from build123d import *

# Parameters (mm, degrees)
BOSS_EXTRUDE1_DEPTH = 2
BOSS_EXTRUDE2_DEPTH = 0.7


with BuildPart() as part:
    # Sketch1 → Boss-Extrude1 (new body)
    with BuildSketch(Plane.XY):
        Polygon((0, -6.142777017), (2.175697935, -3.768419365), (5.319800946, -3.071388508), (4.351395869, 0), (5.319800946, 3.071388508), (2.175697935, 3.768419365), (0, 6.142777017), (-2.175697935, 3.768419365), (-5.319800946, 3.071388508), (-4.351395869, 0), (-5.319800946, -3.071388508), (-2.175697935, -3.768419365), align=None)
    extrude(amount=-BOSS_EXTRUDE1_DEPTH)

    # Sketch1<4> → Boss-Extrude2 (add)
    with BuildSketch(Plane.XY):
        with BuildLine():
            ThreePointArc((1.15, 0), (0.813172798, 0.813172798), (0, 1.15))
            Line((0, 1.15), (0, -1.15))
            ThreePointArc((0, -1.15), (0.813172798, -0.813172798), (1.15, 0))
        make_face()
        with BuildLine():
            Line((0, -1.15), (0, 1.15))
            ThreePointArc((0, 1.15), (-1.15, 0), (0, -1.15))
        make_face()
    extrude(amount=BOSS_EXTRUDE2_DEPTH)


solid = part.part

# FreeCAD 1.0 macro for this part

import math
import FreeCAD as App
import Part
import Sketcher
from FreeCAD import Vector
Q = App.Units.Quantity

doc = App.newDocument("Part")
body = doc.addObject("PartDesign::Body", "Body")

sketch1 = body.newObject("Sketcher::SketchObject", "Sketch")
sketch1.AttachmentSupport = (doc.getObject("XY_Plane"), [""])
sketch1.MapMode = "FlatFace"
sketch1.addGeometry(Part.LineSegment(Vector(0, -6.1, 0), Vector(2.2, -3.8, 0)), False)
sketch1.addGeometry(Part.LineSegment(Vector(2.2, -3.8, 0), Vector(5.3, -3.1, 0)), False)
sketch1.addGeometry(Part.LineSegment(Vector(5.3, -3.1, 0), Vector(4.4, 0, 0)), False)
sketch1.addGeometry(Part.LineSegment(Vector(4.4, 0, 0), Vector(5.3, 3.1, 0)), False)
sketch1.addGeometry(Part.LineSegment(Vector(5.3, 3.1, 0), Vector(2.2, 3.8, 0)), False)
sketch1.addGeometry(Part.LineSegment(Vector(2.2, 3.8, 0), Vector(0, 6.1, 0)), False)
sketch1.addGeometry(Part.LineSegment(Vector(0, 6.1, 0), Vector(-2.2, 3.8, 0)), False)
sketch1.addGeometry(Part.LineSegment(Vector(-2.2, 3.8, 0), Vector(-5.3, 3.1, 0)), False)
sketch1.addGeometry(Part.LineSegment(Vector(-5.3, 3.1, 0), Vector(-4.4, 0, 0)), False)
sketch1.addGeometry(Part.LineSegment(Vector(-4.4, 0, 0), Vector(-5.3, -3.1, 0)), False)
sketch1.addGeometry(Part.LineSegment(Vector(-5.3, -3.1, 0), Vector(-2.2, -3.8, 0)), False)
sketch1.addGeometry(Part.LineSegment(Vector(-2.2, -3.8, 0), Vector(0, -6.1, 0)), False)
sketch1.addConstraint(Sketcher.Constraint("Coincident", 0, 2, 1, 1))
sketch1.addConstraint(Sketcher.Constraint("Coincident", 1, 2, 2, 1))
sketch1.addConstraint(Sketcher.Constraint("Coincident", 2, 2, 3, 1))
sketch1.addConstraint(Sketcher.Constraint("Coincident", 3, 2, 4, 1))
sketch1.addConstraint(Sketcher.Constraint("Coincident", 4, 2, 5, 1))
sketch1.addConstraint(Sketcher.Constraint("Coincident", 5, 2, 6, 1))
sketch1.addConstraint(Sketcher.Constraint("Coincident", 6, 2, 7, 1))
sketch1.addConstraint(Sketcher.Constraint("Coincident", 7, 2, 8, 1))
sketch1.addConstraint(Sketcher.Constraint("Coincident", 8, 2, 9, 1))
sketch1.addConstraint(Sketcher.Constraint("Coincident", 9, 2, 10, 1))
sketch1.addConstraint(Sketcher.Constraint("Coincident", 10, 2, 11, 1))
sketch1.addConstraint(Sketcher.Constraint("Coincident", 11, 2, 0, 1))
sketch1.addConstraint(Sketcher.Constraint("Symmetric", 0, 2, 6, 2, -1, 1))
sketch1.addConstraint(Sketcher.Constraint("Symmetric", 1, 2, 7, 2, -1, 1))
sketch1.addConstraint(Sketcher.Constraint("Symmetric", 2, 2, 8, 2, -1, 1))
sketch1.addConstraint(Sketcher.Constraint("Symmetric", 3, 2, 9, 2, -1, 1))
sketch1.addConstraint(Sketcher.Constraint("Symmetric", 4, 2, 10, 2, -1, 1))
sketch1.addConstraint(Sketcher.Constraint("Symmetric", 5, 2, 11, 2, -1, 1))
sketch1.addConstraint(Sketcher.Constraint("Symmetric", 4, 2, 6, 2, -2))
sketch1.addConstraint(Sketcher.Constraint("Symmetric", 3, 2, 7, 2, -2))
sketch1.addConstraint(Sketcher.Constraint("PointOnObject", 2, 2, -1))
sketch1.addConstraint(Sketcher.Constraint("PointOnObject", 5, 2, -2))
sketch1.addConstraint(Sketcher.Constraint("Equal", 0, 1))
sketch1.addConstraint(Sketcher.Constraint("Equal", 1, 2))
sketch1.addConstraint(Sketcher.Constraint("Angle", 0, Q("47.5 deg")))
sketch1.addConstraint(Sketcher.Constraint("Angle", 1, Q("12.5 deg")))
sketch1.addConstraint(Sketcher.Constraint("Angle", 2, Q("107.5 deg")))
sketch1.addConstraint(Sketcher.Constraint("DistanceX", -1, 1, 1, 2, 5.319801))
pad1 = body.newObject("PartDesign::Pad", "Pad")
pad1.Profile = sketch1
pad1.Length = 2
pad1.Reversed = True

sketch2 = body.newObject("Sketcher::SketchObject", "Sketch001")
sketch2.AttachmentSupport = (doc.getObject("XY_Plane"), [""])
sketch2.MapMode = "FlatFace"
sketch2.addGeometry(Part.ArcOfCircle(Part.Circle(Vector(0, 0, 0), Vector(0, 0, 1), 1.2), math.radians(0), math.radians(90)), False)
sketch2.addGeometry(Part.ArcOfCircle(Part.Circle(Vector(0, 0, 0), Vector(0, 0, 1), 1.1), math.radians(90), math.radians(270)), False)
sketch2.addGeometry(Part.ArcOfCircle(Part.Circle(Vector(0, 0, 0), Vector(0, 0, 1), 1.2), math.radians(-90), math.radians(0)), False)
sketch2.addConstraint(Sketcher.Constraint("Tangent", 0, 2, 1, 1))
sketch2.addConstraint(Sketcher.Constraint("Tangent", 1, 2, 2, 1))
sketch2.addConstraint(Sketcher.Constraint("Tangent", 2, 2, 0, 1))
sketch2.addConstraint(Sketcher.Constraint("Coincident", 0, 3, -1, 1))
sketch2.addConstraint(Sketcher.Constraint("PointOnObject", 0, 2, -2))
sketch2.addConstraint(Sketcher.Constraint("PointOnObject", 1, 2, -2))
sketch2.addConstraint(Sketcher.Constraint("PointOnObject", 2, 2, -1))
sketch2.addConstraint(Sketcher.Constraint("Radius", 0, 1.15))
pad2 = body.newObject("PartDesign::Pad", "Pad001")
pad2.Profile = sketch2
pad2.Length = 0.7

doc.recompute()
